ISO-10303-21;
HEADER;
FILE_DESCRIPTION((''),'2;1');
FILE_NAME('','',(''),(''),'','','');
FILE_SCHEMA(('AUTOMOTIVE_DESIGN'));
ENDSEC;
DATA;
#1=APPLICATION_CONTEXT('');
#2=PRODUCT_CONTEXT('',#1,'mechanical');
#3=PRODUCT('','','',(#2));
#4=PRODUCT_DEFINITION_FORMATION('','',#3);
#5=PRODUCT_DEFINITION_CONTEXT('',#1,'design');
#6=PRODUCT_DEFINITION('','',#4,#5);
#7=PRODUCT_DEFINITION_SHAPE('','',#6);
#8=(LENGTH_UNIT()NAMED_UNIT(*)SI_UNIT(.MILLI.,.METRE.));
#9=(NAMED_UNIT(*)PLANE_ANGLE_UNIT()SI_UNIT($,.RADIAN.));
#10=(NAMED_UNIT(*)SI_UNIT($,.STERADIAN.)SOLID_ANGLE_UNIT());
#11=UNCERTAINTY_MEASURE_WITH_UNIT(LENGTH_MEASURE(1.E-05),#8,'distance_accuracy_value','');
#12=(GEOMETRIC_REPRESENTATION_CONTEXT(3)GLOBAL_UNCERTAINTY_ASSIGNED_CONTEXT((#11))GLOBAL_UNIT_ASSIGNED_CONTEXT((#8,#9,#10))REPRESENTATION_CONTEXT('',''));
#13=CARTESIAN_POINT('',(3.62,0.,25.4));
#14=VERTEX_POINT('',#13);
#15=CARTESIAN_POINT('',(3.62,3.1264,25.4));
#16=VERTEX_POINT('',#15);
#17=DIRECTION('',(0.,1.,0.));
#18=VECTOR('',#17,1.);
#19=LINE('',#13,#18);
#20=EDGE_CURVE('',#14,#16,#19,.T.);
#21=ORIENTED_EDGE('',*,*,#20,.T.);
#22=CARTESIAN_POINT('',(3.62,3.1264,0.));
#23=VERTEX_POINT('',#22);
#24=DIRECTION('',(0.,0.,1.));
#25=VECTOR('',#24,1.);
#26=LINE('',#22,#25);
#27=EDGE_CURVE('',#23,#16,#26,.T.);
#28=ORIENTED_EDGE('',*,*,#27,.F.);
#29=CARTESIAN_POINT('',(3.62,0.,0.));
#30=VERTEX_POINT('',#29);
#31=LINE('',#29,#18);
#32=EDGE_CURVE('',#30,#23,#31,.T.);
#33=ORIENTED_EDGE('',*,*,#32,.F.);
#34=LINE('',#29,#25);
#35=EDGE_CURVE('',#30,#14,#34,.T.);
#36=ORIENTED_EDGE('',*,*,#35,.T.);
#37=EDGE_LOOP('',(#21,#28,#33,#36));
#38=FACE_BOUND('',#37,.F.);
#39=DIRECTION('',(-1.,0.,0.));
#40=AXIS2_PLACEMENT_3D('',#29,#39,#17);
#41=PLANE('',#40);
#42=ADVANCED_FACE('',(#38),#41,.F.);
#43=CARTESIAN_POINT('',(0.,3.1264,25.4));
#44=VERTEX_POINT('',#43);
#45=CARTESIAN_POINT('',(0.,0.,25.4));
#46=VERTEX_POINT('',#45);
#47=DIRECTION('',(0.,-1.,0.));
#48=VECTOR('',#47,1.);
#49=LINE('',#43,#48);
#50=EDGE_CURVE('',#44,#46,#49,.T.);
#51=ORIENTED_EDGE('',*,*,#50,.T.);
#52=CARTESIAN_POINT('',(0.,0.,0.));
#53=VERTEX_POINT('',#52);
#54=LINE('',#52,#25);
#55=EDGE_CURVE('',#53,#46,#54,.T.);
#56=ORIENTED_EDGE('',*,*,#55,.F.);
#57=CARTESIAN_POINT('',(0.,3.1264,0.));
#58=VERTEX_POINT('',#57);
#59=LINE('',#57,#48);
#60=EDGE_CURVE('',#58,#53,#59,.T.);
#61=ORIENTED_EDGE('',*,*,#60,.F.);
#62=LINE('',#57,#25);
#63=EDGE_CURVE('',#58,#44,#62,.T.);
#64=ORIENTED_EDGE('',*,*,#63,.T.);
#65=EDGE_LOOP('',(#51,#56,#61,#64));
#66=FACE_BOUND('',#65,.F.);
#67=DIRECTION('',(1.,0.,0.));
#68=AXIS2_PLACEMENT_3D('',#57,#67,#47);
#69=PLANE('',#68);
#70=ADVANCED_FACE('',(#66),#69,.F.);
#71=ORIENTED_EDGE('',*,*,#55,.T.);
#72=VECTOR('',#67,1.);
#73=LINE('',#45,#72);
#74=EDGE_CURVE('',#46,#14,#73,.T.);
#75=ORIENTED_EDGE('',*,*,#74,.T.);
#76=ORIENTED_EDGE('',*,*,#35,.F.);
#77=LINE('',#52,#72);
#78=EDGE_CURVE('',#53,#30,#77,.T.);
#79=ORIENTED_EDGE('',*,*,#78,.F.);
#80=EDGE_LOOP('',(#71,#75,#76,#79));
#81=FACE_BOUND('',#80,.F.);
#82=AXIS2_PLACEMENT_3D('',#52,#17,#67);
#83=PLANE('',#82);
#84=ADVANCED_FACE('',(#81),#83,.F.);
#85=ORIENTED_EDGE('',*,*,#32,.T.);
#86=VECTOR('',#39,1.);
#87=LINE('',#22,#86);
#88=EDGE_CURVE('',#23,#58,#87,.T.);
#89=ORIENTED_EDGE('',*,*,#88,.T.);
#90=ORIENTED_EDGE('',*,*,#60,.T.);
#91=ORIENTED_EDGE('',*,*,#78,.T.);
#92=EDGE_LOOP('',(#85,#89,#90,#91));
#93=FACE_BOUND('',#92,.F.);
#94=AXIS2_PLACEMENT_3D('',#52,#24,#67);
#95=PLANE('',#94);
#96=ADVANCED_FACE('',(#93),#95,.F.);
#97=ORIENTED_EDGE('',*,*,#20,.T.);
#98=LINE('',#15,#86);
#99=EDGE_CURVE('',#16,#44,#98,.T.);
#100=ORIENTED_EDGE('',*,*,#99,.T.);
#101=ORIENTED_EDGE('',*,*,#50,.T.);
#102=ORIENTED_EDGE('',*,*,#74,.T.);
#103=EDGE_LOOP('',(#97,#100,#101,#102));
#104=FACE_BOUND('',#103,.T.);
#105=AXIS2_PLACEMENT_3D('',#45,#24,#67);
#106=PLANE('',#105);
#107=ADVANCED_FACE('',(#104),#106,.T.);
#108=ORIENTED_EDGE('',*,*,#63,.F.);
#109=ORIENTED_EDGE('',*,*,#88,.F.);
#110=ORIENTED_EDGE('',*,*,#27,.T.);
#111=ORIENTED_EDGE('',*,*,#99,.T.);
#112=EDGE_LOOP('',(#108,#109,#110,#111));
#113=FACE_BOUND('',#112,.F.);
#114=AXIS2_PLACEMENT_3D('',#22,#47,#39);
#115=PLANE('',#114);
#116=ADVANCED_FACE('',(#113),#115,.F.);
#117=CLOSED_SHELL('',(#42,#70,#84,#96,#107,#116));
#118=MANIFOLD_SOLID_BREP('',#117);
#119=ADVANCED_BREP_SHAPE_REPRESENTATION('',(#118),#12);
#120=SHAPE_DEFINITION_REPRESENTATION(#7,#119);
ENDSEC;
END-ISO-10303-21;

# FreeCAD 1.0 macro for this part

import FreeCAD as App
import Part
import Sketcher

V = App.Vector
Q = App.Units.Quantity


def add_polygon(sketch, points):
    """Adds a closed chain of lines whose ends are joined by coincident constraints."""
    first, n = sketch.GeometryCount, len(points)
    for a, b in zip(points, points[1:] + points[:1]):
        sketch.addGeometry(Part.LineSegment(App.Vector(*a, 0), App.Vector(*b, 0)), False)
    for i in range(n):
        sketch.addConstraint(Sketcher.Constraint("Coincident", first + i, 2, first + (i + 1) % n, 1))

doc = App.newDocument("Part")
body = doc.addObject("PartDesign::Body", "Body")

# Sketch on XY plane
sketch1 = body.newObject("Sketcher::SketchObject", "Sketch")
sketch1.AttachmentSupport = (doc.getObject("XY_Plane"), [""])
sketch1.MapMode = "FlatFace"
add_polygon(sketch1, [(0, 3.1), (0, 0), (3.6, 0), (3.6, 3.1)])  # lines 0-3
sketch1.addConstraint([
    Sketcher.Constraint("Vertical", 0),
    Sketcher.Constraint("Horizontal", 1),
    Sketcher.Constraint("Vertical", 2),
    Sketcher.Constraint("Horizontal", 3),
    Sketcher.Constraint("Coincident", 0, 2, -1, 1),
    Sketcher.Constraint("DistanceX", 1, 1, 1, 2, 3.62),
    Sketcher.Constraint("DistanceY", 0, 2, 0, 1, 3.1264),
])
pad1 = body.newObject("PartDesign::Pad", "Pad")
pad1.Profile = sketch1
pad1.Length = Q("1 in")

doc.recompute()
